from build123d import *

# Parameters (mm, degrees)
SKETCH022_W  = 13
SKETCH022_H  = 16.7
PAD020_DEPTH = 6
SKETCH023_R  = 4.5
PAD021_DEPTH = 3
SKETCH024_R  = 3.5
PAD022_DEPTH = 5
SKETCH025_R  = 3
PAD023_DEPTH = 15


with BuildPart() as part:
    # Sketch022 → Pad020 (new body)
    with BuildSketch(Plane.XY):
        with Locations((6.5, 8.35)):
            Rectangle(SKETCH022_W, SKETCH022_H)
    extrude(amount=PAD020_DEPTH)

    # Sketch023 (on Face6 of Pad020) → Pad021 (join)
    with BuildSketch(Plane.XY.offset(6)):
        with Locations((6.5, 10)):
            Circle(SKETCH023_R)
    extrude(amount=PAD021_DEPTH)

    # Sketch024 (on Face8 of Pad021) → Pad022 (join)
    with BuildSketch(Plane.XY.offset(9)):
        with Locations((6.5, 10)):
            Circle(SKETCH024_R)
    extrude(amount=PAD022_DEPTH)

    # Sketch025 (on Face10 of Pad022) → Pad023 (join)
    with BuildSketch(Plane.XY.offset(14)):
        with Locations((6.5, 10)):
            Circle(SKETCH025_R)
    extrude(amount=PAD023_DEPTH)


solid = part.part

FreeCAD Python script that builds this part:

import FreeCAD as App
import Part
import Sketcher

V = App.Vector


def add_polygon(sketch, points):
    """Adds a closed chain of lines whose ends are joined by coincident constraints."""
    first, n = sketch.GeometryCount, len(points)
    for a, b in zip(points, points[1:] + points[:1]):
        sketch.addGeometry(Part.LineSegment(App.Vector(*a, 0), App.Vector(*b, 0)), False)
    for i in range(n):
        sketch.addConstraint(Sketcher.Constraint("Coincident", first + i, 2, first + (i + 1) % n, 1))

doc = App.newDocument("Part")
body = doc.addObject("PartDesign::Body", "Body")

# Sketch on XY plane
sketch1 = body.newObject("Sketcher::SketchObject", "Sketch")
sketch1.AttachmentSupport = (doc.getObject("XY_Plane"), [""])
sketch1.MapMode = "FlatFace"
add_polygon(sketch1, [(0, 16.7), (0, 0), (13, 0), (13, 16.7)])  # lines 0-3
sketch1.addConstraint([
    Sketcher.Constraint("Vertical", 0),
    Sketcher.Constraint("Horizontal", 1),
    Sketcher.Constraint("Vertical", 2),
    Sketcher.Constraint("Horizontal", 3),
    Sketcher.Constraint("Coincident", 0, 2, -1, 1),
    Sketcher.Constraint("DistanceX", 1, 1, 1, 2, 13.0),
    Sketcher.Constraint("DistanceY", 0, 2, 0, 1, 16.7),
])
pad1 = body.newObject("PartDesign::Pad", "Pad")
pad1.Profile = sketch1
pad1.Length = 6

# Sketch on XY plane
sketch2 = body.newObject("Sketcher::SketchObject", "Sketch001")
sketch2.AttachmentSupport = (doc.getObject("XY_Plane"), [""])
sketch2.MapMode = "FlatFace"
sketch2.AttachmentOffset = App.Placement(V(0, 0, 6), App.Rotation())
sketch2.addGeometry(Part.Circle(V(6.5, 10, 0), V(0, 0, 1), 4.5), False)
sketch2.addConstraint([
    Sketcher.Constraint("Diameter", 0, 9.0),
    Sketcher.Constraint("DistanceY", -1, 1, 0, 3, 10.0),
    Sketcher.Constraint("DistanceX", -1, 1, 0, 3, 6.5),
])
pad2 = body.newObject("PartDesign::Pad", "Pad001")
pad2.Profile = sketch2
pad2.Length = 3

# Sketch on XY plane
sketch3 = body.newObject("Sketcher::SketchObject", "Sketch002")
sketch3.AttachmentSupport = (doc.getObject("XY_Plane"), [""])
sketch3.MapMode = "FlatFace"
sketch3.AttachmentOffset = App.Placement(V(0, 0, 9), App.Rotation())
sketch3.addGeometry(Part.Circle(V(6.5, 10, 0), V(0, 0, 1), 3.5), False)
sketch3.addConstraint([
    Sketcher.Constraint("Diameter", 0, 7.0),
    Sketcher.Constraint("DistanceY", -1, 1, 0, 3, 10.0),
    Sketcher.Constraint("DistanceX", -1, 1, 0, 3, 6.5),
])
pad3 = body.newObject("PartDesign::Pad", "Pad002")
pad3.Profile = sketch3
pad3.Length = 5

# Sketch on XY plane
sketch4 = body.newObject("Sketcher::SketchObject", "Sketch003")
sketch4.AttachmentSupport = (doc.getObject("XY_Plane"), [""])
sketch4.MapMode = "FlatFace"
sketch4.AttachmentOffset = App.Placement(V(0, 0, 14), App.Rotation())
sketch4.addGeometry(Part.Circle(V(6.5, 10, 0), V(0, 0, 1), 3), False)
sketch4.addConstraint([
    Sketcher.Constraint("Diameter", 0, 6.0),
    Sketcher.Constraint("DistanceY", -1, 1, 0, 3, 10.0),
    Sketcher.Constraint("DistanceX", -1, 1, 0, 3, 6.5),
])
pad4 = body.newObject("PartDesign::Pad", "Pad003")
pad4.Profile = sketch4
pad4.Length = 15

doc.recompute()
